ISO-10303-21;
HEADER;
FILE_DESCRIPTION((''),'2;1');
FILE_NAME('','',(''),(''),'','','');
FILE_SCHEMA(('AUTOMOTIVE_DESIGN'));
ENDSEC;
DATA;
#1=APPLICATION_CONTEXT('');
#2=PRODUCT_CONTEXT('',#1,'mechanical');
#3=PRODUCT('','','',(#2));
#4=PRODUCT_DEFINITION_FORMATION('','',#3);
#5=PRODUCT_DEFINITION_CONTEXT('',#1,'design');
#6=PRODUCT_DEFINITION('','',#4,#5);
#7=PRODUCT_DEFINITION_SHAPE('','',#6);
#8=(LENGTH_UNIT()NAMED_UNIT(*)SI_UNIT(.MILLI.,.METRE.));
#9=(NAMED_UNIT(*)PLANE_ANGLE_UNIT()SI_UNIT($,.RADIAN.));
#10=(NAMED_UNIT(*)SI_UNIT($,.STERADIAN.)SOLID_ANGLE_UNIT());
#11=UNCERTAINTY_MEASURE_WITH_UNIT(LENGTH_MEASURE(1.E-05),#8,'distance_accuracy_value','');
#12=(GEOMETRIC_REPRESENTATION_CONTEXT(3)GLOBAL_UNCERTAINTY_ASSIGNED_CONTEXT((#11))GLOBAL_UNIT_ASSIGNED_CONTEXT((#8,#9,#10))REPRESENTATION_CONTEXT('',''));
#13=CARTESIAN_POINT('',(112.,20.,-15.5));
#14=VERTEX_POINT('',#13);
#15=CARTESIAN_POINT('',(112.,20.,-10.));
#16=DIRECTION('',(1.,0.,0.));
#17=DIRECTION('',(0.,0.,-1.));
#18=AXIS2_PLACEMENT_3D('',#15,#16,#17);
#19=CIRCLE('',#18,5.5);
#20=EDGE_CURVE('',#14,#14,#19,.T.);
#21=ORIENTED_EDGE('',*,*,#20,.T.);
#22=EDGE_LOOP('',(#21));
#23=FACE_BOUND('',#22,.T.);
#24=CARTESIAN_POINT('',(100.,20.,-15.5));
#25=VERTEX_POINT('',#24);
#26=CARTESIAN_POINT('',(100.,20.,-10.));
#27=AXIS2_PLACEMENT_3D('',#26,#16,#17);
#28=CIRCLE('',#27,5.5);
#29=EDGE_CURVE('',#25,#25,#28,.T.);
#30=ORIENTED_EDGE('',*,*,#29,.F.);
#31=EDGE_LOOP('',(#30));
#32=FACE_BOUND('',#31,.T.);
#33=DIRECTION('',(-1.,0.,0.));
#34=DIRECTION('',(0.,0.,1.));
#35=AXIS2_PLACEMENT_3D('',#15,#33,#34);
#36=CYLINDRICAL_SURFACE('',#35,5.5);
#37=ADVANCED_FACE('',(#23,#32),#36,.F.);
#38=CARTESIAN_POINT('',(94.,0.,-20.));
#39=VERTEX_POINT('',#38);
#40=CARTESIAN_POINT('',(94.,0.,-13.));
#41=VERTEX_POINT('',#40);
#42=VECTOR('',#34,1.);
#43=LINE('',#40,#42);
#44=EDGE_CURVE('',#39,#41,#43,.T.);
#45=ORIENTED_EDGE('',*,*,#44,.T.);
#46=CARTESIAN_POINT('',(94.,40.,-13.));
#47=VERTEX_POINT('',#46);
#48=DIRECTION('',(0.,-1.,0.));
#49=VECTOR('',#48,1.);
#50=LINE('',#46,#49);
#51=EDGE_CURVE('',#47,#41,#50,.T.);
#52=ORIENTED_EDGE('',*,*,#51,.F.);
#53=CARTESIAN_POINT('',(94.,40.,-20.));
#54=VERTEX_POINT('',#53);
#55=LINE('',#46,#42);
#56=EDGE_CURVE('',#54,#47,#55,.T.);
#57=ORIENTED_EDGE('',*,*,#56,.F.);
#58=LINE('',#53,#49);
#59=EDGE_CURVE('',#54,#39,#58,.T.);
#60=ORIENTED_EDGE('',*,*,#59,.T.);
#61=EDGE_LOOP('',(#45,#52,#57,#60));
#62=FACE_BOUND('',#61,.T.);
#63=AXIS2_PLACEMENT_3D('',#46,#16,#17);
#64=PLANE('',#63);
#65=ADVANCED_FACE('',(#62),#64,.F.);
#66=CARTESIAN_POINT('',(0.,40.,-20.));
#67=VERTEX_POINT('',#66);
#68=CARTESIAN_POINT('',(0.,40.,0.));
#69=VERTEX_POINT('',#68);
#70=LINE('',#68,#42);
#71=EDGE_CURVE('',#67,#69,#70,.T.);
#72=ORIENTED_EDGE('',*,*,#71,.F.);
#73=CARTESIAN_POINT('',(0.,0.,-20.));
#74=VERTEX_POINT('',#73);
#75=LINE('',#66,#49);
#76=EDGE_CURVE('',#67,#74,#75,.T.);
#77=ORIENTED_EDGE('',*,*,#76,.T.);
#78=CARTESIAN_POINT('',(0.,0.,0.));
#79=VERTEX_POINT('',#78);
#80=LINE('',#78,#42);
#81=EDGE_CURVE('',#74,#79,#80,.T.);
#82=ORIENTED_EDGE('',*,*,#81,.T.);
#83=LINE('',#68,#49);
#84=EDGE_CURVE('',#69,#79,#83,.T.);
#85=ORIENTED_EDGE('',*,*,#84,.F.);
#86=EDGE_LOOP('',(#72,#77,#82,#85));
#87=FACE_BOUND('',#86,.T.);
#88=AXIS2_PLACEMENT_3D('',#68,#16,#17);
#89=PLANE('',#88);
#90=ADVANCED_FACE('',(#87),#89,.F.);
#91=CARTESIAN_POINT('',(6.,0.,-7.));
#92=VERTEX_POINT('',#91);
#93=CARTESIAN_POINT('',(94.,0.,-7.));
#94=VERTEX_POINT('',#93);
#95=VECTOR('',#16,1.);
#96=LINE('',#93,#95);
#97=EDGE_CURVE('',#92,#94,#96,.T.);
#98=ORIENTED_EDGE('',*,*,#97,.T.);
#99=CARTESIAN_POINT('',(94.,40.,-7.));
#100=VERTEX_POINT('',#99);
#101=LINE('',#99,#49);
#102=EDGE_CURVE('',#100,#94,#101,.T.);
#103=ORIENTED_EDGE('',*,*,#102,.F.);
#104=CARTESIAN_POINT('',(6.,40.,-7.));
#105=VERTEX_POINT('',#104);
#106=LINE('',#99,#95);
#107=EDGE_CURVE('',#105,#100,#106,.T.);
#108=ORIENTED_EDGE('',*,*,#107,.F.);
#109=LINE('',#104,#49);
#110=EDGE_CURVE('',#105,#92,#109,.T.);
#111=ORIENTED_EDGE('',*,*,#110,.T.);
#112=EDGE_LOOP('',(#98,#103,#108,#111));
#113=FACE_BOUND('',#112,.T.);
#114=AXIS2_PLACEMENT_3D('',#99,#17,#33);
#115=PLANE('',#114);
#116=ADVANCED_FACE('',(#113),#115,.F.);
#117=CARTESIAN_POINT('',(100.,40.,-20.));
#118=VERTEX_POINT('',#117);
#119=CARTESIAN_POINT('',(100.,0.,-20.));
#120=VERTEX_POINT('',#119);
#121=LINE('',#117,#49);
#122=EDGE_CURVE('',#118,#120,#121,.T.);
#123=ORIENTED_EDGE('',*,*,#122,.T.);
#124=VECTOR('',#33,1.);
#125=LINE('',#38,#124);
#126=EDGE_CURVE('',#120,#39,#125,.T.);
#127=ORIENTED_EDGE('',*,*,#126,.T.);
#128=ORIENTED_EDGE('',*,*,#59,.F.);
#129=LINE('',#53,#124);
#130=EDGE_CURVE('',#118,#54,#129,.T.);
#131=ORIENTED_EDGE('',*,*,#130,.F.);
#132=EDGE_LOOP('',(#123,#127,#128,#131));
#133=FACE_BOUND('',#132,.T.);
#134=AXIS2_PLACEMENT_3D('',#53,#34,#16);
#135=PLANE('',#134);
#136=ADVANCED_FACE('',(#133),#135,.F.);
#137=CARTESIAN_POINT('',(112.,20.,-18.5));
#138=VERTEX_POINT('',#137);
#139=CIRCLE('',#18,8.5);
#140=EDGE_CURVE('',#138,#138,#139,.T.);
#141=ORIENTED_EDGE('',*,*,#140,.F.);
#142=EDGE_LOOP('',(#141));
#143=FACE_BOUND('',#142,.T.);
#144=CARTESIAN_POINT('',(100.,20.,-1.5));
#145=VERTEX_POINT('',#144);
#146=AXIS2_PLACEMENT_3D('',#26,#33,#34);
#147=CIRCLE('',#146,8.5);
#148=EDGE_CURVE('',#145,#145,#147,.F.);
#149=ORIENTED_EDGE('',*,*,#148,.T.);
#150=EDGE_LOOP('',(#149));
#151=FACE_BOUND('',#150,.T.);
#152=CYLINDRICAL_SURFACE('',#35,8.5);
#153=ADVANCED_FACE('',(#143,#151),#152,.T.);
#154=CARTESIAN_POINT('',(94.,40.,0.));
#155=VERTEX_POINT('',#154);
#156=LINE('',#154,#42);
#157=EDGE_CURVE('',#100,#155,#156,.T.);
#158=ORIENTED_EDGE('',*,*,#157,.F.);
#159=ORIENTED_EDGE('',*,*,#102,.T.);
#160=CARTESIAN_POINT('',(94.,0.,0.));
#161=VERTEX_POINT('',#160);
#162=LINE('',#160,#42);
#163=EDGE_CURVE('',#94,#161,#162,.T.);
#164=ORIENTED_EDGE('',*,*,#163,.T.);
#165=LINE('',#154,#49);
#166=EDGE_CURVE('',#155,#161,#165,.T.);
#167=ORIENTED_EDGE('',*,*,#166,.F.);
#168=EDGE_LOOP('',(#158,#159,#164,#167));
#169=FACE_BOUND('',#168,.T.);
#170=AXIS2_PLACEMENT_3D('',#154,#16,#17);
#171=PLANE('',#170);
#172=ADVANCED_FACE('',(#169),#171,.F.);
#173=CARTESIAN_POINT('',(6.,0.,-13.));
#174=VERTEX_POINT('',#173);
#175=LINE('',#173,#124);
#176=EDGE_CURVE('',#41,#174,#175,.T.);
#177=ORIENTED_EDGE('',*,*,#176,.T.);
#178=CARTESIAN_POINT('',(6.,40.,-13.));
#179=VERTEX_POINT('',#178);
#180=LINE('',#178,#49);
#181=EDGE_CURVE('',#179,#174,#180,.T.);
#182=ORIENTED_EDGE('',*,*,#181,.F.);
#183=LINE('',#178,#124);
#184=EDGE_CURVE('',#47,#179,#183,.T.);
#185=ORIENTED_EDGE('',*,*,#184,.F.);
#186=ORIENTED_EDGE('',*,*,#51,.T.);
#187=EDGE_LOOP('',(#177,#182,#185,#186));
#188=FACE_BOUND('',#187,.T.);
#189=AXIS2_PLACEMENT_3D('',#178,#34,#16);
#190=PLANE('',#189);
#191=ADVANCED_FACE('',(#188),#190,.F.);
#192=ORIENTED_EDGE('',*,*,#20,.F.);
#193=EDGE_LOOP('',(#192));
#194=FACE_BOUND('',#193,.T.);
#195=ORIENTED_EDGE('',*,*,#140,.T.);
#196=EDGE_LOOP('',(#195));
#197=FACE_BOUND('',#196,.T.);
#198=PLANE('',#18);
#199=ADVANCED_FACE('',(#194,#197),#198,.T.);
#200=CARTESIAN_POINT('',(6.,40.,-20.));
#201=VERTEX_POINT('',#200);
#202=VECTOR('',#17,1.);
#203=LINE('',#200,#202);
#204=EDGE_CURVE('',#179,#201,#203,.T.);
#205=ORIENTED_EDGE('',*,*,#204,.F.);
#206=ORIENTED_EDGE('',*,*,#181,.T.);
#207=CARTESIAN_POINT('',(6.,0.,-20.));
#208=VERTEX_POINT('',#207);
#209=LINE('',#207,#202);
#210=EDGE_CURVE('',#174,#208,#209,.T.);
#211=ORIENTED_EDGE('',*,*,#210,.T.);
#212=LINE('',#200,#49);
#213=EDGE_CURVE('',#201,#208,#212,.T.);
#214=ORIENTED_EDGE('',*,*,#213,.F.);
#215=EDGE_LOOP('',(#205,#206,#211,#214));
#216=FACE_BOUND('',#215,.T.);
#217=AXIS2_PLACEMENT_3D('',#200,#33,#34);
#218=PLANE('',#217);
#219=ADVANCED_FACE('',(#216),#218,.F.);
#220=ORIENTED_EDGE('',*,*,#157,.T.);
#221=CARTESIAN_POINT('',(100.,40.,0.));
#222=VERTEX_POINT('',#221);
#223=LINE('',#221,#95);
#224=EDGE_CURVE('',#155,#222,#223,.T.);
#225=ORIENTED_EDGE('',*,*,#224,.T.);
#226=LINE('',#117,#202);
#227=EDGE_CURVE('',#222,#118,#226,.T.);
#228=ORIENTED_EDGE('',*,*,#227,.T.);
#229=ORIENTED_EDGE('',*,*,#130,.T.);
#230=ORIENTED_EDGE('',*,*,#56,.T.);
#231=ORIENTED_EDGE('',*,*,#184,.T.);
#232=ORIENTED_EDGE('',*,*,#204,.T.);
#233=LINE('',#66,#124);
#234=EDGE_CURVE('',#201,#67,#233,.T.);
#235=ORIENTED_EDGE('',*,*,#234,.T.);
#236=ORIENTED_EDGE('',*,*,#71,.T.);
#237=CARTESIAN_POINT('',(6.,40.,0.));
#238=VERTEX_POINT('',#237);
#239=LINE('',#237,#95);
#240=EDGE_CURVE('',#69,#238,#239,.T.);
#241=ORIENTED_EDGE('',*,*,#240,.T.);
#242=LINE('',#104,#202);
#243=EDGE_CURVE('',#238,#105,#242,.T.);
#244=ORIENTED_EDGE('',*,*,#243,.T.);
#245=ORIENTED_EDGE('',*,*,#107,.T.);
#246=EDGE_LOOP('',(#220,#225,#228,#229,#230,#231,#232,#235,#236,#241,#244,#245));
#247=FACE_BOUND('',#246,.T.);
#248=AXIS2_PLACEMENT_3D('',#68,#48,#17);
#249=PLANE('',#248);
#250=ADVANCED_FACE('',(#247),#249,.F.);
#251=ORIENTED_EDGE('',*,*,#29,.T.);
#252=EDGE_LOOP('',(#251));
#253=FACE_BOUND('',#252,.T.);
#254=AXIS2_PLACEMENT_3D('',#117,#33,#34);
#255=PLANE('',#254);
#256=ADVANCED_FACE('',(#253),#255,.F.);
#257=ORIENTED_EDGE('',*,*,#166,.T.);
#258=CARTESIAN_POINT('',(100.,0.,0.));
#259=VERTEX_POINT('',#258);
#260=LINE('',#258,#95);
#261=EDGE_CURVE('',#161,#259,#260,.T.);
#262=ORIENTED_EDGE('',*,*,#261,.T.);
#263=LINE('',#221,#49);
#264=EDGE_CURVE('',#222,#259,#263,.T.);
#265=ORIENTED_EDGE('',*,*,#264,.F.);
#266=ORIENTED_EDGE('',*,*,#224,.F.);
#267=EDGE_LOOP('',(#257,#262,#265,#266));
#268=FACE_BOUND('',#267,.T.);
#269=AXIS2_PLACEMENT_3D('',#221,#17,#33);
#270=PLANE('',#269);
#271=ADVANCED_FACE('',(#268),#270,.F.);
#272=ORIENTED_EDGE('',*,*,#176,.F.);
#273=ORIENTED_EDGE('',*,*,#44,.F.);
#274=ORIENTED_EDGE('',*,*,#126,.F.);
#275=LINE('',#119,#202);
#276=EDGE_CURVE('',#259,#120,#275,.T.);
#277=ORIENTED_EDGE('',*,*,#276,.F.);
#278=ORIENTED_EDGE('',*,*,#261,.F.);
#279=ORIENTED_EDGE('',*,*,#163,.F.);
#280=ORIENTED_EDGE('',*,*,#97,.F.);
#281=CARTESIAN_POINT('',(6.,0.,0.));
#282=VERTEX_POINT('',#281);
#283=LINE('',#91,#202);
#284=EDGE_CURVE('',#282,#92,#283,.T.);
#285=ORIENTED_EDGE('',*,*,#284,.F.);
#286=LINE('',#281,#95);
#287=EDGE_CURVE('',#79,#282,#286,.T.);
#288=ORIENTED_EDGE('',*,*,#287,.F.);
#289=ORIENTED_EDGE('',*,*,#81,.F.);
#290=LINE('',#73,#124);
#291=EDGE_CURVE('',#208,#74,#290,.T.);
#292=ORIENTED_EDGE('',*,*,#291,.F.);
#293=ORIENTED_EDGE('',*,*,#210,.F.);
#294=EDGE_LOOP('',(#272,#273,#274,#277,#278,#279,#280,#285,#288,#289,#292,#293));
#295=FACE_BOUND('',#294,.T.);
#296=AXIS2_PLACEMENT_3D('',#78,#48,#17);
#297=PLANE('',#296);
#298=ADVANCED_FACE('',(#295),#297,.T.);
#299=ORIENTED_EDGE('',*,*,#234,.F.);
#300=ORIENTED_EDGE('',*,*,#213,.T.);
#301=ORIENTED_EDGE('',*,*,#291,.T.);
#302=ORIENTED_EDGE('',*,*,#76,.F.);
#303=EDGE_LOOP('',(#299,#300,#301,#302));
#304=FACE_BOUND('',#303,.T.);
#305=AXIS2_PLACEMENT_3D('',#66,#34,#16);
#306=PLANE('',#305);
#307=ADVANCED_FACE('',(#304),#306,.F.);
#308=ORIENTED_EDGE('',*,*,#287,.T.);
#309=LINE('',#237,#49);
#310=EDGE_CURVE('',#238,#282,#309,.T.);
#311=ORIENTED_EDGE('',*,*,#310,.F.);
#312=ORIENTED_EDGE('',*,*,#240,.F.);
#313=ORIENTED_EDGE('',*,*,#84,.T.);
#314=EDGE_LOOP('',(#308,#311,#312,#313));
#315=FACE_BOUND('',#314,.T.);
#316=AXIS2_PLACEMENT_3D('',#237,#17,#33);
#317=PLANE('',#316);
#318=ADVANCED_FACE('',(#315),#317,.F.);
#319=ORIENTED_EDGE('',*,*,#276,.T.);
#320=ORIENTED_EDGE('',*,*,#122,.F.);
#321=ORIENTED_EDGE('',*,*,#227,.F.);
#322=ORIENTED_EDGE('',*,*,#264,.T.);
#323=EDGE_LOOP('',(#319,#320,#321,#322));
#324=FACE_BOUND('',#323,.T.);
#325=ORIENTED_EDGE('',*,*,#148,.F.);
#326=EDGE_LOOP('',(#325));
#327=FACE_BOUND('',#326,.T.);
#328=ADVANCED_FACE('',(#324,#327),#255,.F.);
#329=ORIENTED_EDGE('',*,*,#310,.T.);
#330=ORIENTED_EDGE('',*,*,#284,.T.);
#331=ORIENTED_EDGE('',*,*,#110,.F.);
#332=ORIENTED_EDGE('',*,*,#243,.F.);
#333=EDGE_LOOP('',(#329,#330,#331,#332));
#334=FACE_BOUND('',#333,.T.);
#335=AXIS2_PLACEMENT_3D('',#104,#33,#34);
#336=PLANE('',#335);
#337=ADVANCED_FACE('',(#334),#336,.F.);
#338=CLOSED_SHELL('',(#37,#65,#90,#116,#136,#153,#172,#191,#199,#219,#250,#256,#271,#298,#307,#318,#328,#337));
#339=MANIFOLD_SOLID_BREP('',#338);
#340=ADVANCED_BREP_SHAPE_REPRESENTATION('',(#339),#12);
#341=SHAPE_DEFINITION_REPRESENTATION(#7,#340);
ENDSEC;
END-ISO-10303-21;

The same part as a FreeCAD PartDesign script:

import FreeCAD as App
import Part
import Sketcher

V = App.Vector
Q = App.Units.Quantity

doc = App.newDocument("Part")
body = doc.addObject("PartDesign::Body", "Body")

sketch1 = body.newObject("Sketcher::SketchObject", "Sketch")
sketch1.AttachmentSupport = (doc.getObject("XZ_Plane"), [""])
sketch1.MapMode = "FlatFace"
sketch1.addGeometry([
    Part.LineSegment(V(0, -20, 0), V(0, 0, 0)),
    Part.LineSegment(V(0, 0, 0), V(6, 0, 0)),
    Part.LineSegment(V(6, 0, 0), V(6, -7, 0)),
    Part.LineSegment(V(6, -7, 0), V(94, -7, 0)),
    Part.LineSegment(V(94, -7, 0), V(94, 0, 0)),
    Part.LineSegment(V(94, 0, 0), V(100, 0, 0)),
    Part.LineSegment(V(100, 0, 0), V(100, -20, 0)),
    Part.LineSegment(V(100, -20, 0), V(94, -20, 0)),
    Part.LineSegment(V(94, -20, 0), V(94, -13, 0)),
    Part.LineSegment(V(94, -13, 0), V(6, -13, 0)),
    Part.LineSegment(V(6, -13, 0), V(6, -20, 0)),
    Part.LineSegment(V(6, -20, 0), V(0, -20, 0)),
], False)
sketch1.addConstraint([
    Sketcher.Constraint("Coincident", 0, 2, 1, 1),
    Sketcher.Constraint("Coincident", 1, 2, 2, 1),
    Sketcher.Constraint("Coincident", 2, 2, 3, 1),
    Sketcher.Constraint("Coincident", 3, 2, 4, 1),
    Sketcher.Constraint("Coincident", 4, 2, 5, 1),
    Sketcher.Constraint("Coincident", 5, 2, 6, 1),
    Sketcher.Constraint("Coincident", 6, 2, 7, 1),
    Sketcher.Constraint("Coincident", 7, 2, 8, 1),
    Sketcher.Constraint("Coincident", 8, 2, 9, 1),
    Sketcher.Constraint("Coincident", 9, 2, 10, 1),
    Sketcher.Constraint("Coincident", 10, 2, 11, 1),
    Sketcher.Constraint("Coincident", 11, 2, 0, 1),
    Sketcher.Constraint("Vertical", 0),
    Sketcher.Constraint("Horizontal", 1),
    Sketcher.Constraint("Vertical", 2),
    Sketcher.Constraint("Horizontal", 3),
    Sketcher.Constraint("Vertical", 4),
    Sketcher.Constraint("Horizontal", 5),
    Sketcher.Constraint("Vertical", 6),
    Sketcher.Constraint("Horizontal", 7),
    Sketcher.Constraint("Vertical", 8),
    Sketcher.Constraint("Horizontal", 9),
    Sketcher.Constraint("Vertical", 10),
    Sketcher.Constraint("Horizontal", 11),
    Sketcher.Constraint("Coincident", 0, 2, -1, 1),
    Sketcher.Constraint("PointOnObject", 4, 2, -1),
    Sketcher.Constraint("Horizontal", 7, 2, 10, 2),
    Sketcher.Constraint("Vertical", 4, 2, 7, 2),
    Sketcher.Constraint("Vertical", 2, 2, 9, 2),
    Sketcher.Constraint("Equal", 1, 5),
    Sketcher.Constraint("Equal", 4, 8),
    Sketcher.Constraint("DistanceX", 1, 1, 1, 2, Q("6 mm")),
    Sketcher.Constraint("DistanceX", 3, 1, 3, 2, Q("88 mm")),
    Sketcher.Constraint("DistanceY", 0, 1, 0, 2, Q("20 mm")),
    Sketcher.Constraint("DistanceY", 2, 2, 2, 1, Q("7 mm")),
])
pad1 = body.newObject("PartDesign::Pad", "Pad")
pad1.Profile = sketch1
pad1.Length = 40
pad1.Reversed = True

sketch2 = body.newObject("Sketcher::SketchObject", "Sketch001")
sketch2.AttachmentSupport = (doc.getObject("YZ_Plane"), [""])
sketch2.MapMode = "FlatFace"
sketch2.AttachmentOffset = App.Placement(V(0, 0, 100), App.Rotation())
sketch2.addGeometry([
    Part.Circle(V(20, -10, 0), V(0, 0, 1), 8),
    Part.Circle(V(20, -10, 0), V(0, 0, 1), 6),
], False)
sketch2.addConstraint([
    Sketcher.Constraint("Coincident", 1, 3, 0, 3),
    Sketcher.Constraint("Diameter", 0, Q("17 mm")),
    Sketcher.Constraint("Diameter", 1, Q("11 mm")),
    Sketcher.Constraint("DistanceX", -1, 1, 0, 3, Q("20 mm")),
    Sketcher.Constraint("DistanceY", 0, 3, -1, 1, Q("10 mm")),
])
pad2 = body.newObject("PartDesign::Pad", "Pad001")
pad2.Profile = sketch2
pad2.Length = 12

doc.recompute()
